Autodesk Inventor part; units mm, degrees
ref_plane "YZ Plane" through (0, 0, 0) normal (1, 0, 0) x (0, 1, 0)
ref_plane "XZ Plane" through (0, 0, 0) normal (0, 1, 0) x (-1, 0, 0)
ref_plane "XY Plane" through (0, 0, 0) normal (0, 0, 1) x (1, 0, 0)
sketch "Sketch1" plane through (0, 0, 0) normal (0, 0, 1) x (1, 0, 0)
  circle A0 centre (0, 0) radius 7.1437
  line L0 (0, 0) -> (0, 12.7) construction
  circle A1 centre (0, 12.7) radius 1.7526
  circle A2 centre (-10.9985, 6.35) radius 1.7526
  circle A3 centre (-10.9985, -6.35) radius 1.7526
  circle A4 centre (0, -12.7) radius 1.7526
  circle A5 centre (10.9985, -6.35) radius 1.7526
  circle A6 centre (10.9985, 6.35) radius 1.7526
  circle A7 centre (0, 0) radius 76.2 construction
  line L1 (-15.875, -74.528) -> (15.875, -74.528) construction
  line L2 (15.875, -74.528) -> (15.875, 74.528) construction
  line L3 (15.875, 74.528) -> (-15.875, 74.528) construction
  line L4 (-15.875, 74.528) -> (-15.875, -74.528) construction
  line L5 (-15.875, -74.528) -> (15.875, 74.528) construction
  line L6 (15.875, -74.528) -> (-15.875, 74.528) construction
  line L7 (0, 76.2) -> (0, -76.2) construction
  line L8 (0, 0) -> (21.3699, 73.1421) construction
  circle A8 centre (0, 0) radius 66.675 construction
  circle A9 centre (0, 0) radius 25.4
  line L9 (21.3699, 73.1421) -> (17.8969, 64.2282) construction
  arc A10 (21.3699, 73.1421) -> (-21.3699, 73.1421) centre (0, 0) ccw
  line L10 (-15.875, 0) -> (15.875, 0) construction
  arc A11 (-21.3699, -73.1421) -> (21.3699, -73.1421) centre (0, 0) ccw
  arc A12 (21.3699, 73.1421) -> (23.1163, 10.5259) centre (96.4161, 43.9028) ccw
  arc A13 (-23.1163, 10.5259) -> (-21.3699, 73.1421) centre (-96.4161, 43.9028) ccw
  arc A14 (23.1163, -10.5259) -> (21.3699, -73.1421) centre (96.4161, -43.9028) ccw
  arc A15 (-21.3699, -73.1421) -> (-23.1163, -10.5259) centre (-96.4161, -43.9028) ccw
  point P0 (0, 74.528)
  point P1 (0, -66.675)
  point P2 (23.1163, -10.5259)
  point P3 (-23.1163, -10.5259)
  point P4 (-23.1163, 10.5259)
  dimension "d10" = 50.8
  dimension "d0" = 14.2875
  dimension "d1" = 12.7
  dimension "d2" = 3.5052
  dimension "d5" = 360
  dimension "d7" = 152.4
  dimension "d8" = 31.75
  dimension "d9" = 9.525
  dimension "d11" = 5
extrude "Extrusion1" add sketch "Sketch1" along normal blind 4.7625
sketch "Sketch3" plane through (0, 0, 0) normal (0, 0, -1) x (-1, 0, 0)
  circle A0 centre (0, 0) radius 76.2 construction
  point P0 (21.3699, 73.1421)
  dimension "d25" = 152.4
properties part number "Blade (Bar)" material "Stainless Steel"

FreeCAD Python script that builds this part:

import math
import FreeCAD as App
import Part
import Sketcher

V = App.Vector
Q = App.Units.Quantity

doc = App.newDocument("Part")
body = doc.addObject("PartDesign::Body", "Body")

# Sketch on XY plane
sketch1 = body.newObject("Sketcher::SketchObject", "Sketch")
sketch1.AttachmentSupport = (doc.getObject("XY_Plane"), [""])
sketch1.MapMode = "FlatFace"
sketch1.addGeometry(Part.ArcOfCircle(Part.Circle(V(0, 0, 0), V(0, 0, 1), 25.4), math.radians(-24.481927), math.radians(24.481927)), False)
sketch1.addGeometry(Part.ArcOfCircle(Part.Circle(V(96.4161, 43.9028, 0), V(0, 0, 1), 80.5411), math.radians(158.71325), math.radians(204.482041)), False)
sketch1.addGeometry(Part.ArcOfCircle(Part.Circle(V(0, 0, 0), V(0, 0, 1), 76.199996), math.radians(73.713241), math.radians(106.286759)), False)
sketch1.addGeometry(Part.ArcOfCircle(Part.Circle(V(-96.4161, 43.9028, 0), V(0, 0, 1), 80.541158), math.radians(-24.482041), math.radians(21.28675)), False)
sketch1.addGeometry(Part.ArcOfCircle(Part.Circle(V(0, 0, 0), V(0, 0, 1), 25.4), math.radians(155.518073), math.radians(204.481927)), False)
sketch1.addGeometry(Part.ArcOfCircle(Part.Circle(V(-96.4161, -43.9028, 0), V(0, 0, 1), 80.5411), math.radians(-21.28675), math.radians(24.482041)), False)
sketch1.addGeometry(Part.ArcOfCircle(Part.Circle(V(0, 0, 0), V(0, 0, 1), 76.199996), math.radians(-106.286759), math.radians(-73.713241)), False)
sketch1.addGeometry(Part.ArcOfCircle(Part.Circle(V(96.4161, -43.9028, 0), V(0, 0, 1), 80.541158), math.radians(155.517959), math.radians(201.28675)), False)
sketch1.addGeometry(Part.Circle(V(-10.9985, -6.35, 0), V(0, 0, 1), 1.7526), False)
sketch1.addGeometry(Part.Circle(V(0, -12.7, 0), V(0, 0, 1), 1.7526), False)
sketch1.addGeometry(Part.Circle(V(10.9985, -6.35, 0), V(0, 0, 1), 1.7526), False)
sketch1.addGeometry(Part.Circle(V(-10.9985, 6.35, 0), V(0, 0, 1), 1.7526), False)
sketch1.addGeometry(Part.Circle(V(0, 0, 0), V(0, 0, 1), 7.1437), False)
sketch1.addGeometry(Part.Circle(V(0, 12.7, 0), V(0, 0, 1), 1.7526), False)
sketch1.addGeometry(Part.Circle(V(10.9985, 6.35, 0), V(0, 0, 1), 1.7526), False)
sketch1.addConstraint(Sketcher.Constraint("Tangent", 0, 2, 1, 2))
sketch1.addConstraint(Sketcher.Constraint("Coincident", 1, 1, 2, 1))
sketch1.addConstraint(Sketcher.Constraint("Coincident", 2, 2, 3, 2))
sketch1.addConstraint(Sketcher.Constraint("Tangent", 3, 1, 4, 1))
sketch1.addConstraint(Sketcher.Constraint("Tangent", 4, 2, 5, 2))
sketch1.addConstraint(Sketcher.Constraint("Coincident", 5, 1, 6, 1))
sketch1.addConstraint(Sketcher.Constraint("Coincident", 6, 2, 7, 2))
sketch1.addConstraint(Sketcher.Constraint("Tangent", 7, 1, 0, 1))
sketch1.addConstraint(Sketcher.Constraint("Coincident", 0, 3, -1, 1))
sketch1.addConstraint(Sketcher.Constraint("Coincident", 2, 3, -1, 1))
sketch1.addConstraint(Sketcher.Constraint("Coincident", 4, 3, -1, 1))
sketch1.addConstraint(Sketcher.Constraint("Coincident", 6, 3, -1, 1))
sketch1.addConstraint(Sketcher.Constraint("Coincident", 12, 3, -1, 1))
sketch1.addConstraint(Sketcher.Constraint("Equal", 1, 3))
sketch1.addConstraint(Sketcher.Constraint("Equal", 0, 4))
sketch1.addConstraint(Sketcher.Constraint("Equal", 3, 5))
sketch1.addConstraint(Sketcher.Constraint("Equal", 2, 6))
sketch1.addConstraint(Sketcher.Constraint("Equal", 5, 7))
sketch1.addConstraint(Sketcher.Constraint("Equal", 8, 9))
sketch1.addConstraint(Sketcher.Constraint("Equal", 9, 10))
sketch1.addConstraint(Sketcher.Constraint("Equal", 10, 11))
sketch1.addConstraint(Sketcher.Constraint("Equal", 11, 13))
sketch1.addConstraint(Sketcher.Constraint("Equal", 13, 14))
sketch1.addConstraint(Sketcher.Constraint("Symmetric", 10, 3, 11, 3, -1, 1))
sketch1.addConstraint(Sketcher.Constraint("Symmetric", 9, 3, 13, 3, -1, 1))
sketch1.addConstraint(Sketcher.Constraint("Symmetric", 8, 3, 14, 3, -1, 1))
sketch1.addConstraint(Sketcher.Constraint("Symmetric", 8, 3, 10, 3, -2))
sketch1.addConstraint(Sketcher.Constraint("PointOnObject", 9, 3, -2))
sketch1.addConstraint(Sketcher.Constraint("Horizontal", 1, 3, 3, 3))
sketch1.addConstraint(Sketcher.Constraint("Horizontal", 5, 3, 7, 3))
sketch1.addConstraint(Sketcher.Constraint("Vertical", 3, 3, 5, 3))
sketch1.addConstraint(Sketcher.Constraint("Radius", 0, Q("1 in")))
sketch1.addConstraint(Sketcher.Constraint("Radius", 2, Q("3 in")))
sketch1.addConstraint(Sketcher.Constraint("Diameter", 8, Q("0.138 in")))
sketch1.addConstraint(Sketcher.Constraint("Diameter", 12, Q("0.5625 in")))
sketch1.addConstraint(Sketcher.Constraint("DistanceY", 9, 3, -1, 1, Q("0.5 in")))
sketch1.addConstraint(Sketcher.Constraint("DistanceY", 8, 3, 11, 3, Q("0.5 in")))
sketch1.addConstraint(Sketcher.Constraint("Radius", 1, Q("3.1709 in")))
sketch1.addConstraint(Sketcher.Constraint("DistanceX", 8, 3, -1, 1, Q("0.433 in")))
sketch1.addConstraint(Sketcher.Constraint("DistanceX", -1, 1, 1, 3, Q("3.7959 in")))
pad1 = body.newObject("PartDesign::Pad", "Pad")
pad1.Profile = sketch1
pad1.Length = Q("0.1875 in")

doc.recompute()
